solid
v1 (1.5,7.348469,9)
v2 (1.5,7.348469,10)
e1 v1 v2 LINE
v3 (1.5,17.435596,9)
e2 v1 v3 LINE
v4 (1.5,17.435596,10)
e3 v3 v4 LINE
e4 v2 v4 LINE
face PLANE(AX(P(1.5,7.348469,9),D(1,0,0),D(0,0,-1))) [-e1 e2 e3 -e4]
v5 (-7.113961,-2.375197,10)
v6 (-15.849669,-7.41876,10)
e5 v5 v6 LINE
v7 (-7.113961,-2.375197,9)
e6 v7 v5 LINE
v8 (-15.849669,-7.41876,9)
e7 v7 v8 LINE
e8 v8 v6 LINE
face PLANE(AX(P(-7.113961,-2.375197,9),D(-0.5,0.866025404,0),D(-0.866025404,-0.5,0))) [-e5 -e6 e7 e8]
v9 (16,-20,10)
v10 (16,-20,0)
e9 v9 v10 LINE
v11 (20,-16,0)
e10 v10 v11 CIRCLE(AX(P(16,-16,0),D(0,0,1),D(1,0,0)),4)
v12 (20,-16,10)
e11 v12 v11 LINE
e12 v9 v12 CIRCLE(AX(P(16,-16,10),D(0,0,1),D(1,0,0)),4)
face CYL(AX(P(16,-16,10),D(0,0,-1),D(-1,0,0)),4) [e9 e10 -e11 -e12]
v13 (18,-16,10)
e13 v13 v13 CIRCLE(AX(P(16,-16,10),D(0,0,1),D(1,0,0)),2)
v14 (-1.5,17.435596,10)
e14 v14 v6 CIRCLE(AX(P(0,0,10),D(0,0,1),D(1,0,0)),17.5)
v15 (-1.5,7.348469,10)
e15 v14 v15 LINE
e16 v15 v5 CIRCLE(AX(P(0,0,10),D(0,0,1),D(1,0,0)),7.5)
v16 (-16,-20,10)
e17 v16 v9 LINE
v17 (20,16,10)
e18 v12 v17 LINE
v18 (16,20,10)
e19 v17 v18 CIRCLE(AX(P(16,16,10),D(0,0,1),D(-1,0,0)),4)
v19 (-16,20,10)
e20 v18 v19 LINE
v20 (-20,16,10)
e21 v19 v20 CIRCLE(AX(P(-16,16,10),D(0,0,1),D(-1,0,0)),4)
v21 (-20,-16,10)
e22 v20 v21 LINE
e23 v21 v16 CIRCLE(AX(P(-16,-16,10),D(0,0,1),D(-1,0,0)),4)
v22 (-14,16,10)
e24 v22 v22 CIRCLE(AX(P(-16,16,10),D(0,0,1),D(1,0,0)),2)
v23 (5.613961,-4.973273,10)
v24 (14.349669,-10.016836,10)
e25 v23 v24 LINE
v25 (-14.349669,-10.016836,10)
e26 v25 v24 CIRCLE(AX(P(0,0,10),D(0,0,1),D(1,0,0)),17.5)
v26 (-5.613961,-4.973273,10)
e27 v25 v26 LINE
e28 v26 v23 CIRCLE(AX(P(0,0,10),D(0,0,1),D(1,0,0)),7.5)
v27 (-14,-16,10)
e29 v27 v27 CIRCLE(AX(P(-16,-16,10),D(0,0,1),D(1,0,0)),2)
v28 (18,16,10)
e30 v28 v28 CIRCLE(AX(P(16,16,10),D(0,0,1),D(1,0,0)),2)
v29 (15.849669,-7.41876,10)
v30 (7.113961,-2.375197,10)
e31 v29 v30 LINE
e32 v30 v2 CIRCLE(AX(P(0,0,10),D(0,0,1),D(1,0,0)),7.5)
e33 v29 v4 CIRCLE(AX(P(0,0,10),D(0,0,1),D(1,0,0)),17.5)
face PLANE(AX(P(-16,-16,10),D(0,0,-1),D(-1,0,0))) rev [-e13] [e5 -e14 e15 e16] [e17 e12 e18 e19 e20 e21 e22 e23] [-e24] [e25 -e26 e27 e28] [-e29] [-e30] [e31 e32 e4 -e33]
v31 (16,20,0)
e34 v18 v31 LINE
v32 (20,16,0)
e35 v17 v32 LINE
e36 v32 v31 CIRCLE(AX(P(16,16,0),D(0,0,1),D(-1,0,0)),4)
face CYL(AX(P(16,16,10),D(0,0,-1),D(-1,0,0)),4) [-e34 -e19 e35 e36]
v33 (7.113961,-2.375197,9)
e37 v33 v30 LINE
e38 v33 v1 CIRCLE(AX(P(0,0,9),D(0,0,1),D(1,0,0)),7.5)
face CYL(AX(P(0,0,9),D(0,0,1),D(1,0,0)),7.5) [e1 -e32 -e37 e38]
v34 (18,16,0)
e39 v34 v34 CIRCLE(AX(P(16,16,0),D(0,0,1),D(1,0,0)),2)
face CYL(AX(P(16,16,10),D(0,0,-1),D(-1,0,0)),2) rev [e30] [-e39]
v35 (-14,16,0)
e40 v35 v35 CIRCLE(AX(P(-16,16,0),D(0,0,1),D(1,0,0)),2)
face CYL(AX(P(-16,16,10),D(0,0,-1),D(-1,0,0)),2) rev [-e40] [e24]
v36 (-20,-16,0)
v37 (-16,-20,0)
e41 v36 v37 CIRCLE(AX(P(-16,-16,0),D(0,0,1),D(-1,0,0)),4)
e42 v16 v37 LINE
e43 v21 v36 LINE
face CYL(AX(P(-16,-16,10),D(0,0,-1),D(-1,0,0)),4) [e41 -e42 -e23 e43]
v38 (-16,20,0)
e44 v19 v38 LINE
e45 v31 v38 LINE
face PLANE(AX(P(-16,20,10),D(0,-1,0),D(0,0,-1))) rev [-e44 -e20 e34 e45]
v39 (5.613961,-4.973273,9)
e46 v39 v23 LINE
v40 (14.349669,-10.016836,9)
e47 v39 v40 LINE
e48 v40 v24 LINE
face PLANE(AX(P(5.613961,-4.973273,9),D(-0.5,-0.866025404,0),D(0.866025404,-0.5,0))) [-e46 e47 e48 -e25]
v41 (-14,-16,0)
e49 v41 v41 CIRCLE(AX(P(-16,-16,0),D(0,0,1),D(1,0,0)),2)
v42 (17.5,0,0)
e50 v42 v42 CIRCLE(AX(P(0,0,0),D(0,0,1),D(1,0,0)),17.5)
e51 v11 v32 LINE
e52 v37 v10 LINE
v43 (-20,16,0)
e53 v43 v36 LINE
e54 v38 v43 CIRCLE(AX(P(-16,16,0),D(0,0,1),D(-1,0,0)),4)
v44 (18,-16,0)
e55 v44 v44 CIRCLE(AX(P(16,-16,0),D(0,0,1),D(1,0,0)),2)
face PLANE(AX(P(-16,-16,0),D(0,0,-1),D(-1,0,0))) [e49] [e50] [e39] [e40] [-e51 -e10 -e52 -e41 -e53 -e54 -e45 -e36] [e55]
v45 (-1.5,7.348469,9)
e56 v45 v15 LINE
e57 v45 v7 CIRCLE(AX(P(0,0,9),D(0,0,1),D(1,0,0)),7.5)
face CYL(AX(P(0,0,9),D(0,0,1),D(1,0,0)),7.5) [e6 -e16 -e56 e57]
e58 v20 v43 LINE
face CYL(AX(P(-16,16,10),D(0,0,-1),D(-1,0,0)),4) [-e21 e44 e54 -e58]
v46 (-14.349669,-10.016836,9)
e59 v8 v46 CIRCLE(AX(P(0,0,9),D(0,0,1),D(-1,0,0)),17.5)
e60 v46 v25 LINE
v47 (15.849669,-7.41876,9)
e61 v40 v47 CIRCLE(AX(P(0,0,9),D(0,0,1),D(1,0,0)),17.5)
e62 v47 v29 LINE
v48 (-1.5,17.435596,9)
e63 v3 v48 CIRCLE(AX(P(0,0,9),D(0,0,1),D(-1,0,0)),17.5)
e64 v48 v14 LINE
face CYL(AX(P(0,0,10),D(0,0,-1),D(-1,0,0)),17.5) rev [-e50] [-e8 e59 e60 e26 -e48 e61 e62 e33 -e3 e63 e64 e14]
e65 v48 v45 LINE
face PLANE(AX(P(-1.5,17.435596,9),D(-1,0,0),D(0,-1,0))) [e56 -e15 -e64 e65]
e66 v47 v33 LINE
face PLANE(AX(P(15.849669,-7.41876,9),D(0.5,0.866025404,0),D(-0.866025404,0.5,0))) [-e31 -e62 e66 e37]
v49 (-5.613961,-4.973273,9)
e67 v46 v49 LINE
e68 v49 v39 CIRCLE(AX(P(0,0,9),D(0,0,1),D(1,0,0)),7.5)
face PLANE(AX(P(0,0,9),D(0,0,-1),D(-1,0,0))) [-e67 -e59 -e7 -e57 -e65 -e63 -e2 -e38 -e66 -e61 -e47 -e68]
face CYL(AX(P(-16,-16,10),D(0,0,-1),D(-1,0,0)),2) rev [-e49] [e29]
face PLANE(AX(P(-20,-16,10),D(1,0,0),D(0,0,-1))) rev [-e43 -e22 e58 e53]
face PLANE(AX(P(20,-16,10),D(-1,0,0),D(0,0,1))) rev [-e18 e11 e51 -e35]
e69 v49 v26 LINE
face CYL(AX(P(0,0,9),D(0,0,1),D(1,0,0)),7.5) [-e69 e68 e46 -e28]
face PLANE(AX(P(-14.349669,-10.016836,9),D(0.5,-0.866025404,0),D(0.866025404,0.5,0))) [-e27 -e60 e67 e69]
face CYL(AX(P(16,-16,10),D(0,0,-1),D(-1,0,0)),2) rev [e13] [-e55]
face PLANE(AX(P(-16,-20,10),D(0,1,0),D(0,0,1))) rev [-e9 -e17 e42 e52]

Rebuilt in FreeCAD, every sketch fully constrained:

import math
import FreeCAD as App
import Part
import Sketcher

V = App.Vector
Q = App.Units.Quantity

doc = App.newDocument("Part")
params = doc.addObject("Spreadsheet::Sheet", "Params")
for row, (alias, value) in enumerate([
    ("sketch1_diameter", "4 mm"),
    ("sketch1_diameter2", "35 mm"),
    ("sketch1_radius", "4 mm"),
    ("sketch1_width", "32 mm"),
    ("pad1_length", "10 mm"),
    ("sketch2_radius", "7.5 mm"),
    ("sketch2_radius2", "17.5 mm"),
    ("pad2_length", "1 mm"),
], start=1):
    params.set(f"A{row}", alias)
    params.set(f"B{row}", "=" + value)
    params.setAlias(f"B{row}", alias)

body = doc.addObject("PartDesign::Body", "Body")

sketch1 = body.newObject("Sketcher::SketchObject", "Sketch")
sketch1.AttachmentSupport = (doc.getObject("XY_Plane"), [""])
sketch1.MapMode = "FlatFace"
sketch1.addGeometry([
    Part.LineSegment(V(-16, -20, 0), V(16, -20, 0)),
    Part.ArcOfCircle(Part.Circle(V(16, -16, 0), V(0, 0, 1), 4), math.radians(-90), math.radians(0)),
    Part.LineSegment(V(20, -16, 0), V(20, 16, 0)),
    Part.ArcOfCircle(Part.Circle(V(16, 16, 0), V(0, 0, 1), 4), math.radians(0), math.radians(90)),
    Part.LineSegment(V(16, 20, 0), V(-16, 20, 0)),
    Part.ArcOfCircle(Part.Circle(V(-16, 16, 0), V(0, 0, 1), 4), math.radians(90), math.radians(180)),
    Part.LineSegment(V(-20, 16, 0), V(-20, -16, 0)),
    Part.ArcOfCircle(Part.Circle(V(-16, -16, 0), V(0, 0, 1), 4), math.radians(180), math.radians(270)),
    Part.Circle(V(-16, -16, 0), V(0, 0, 1), 2),
    Part.Circle(V(16, -16, 0), V(0, 0, 1), 2),
    Part.Circle(V(-16, 16, 0), V(0, 0, 1), 2),
    Part.Circle(V(0, 0, 0), V(0, 0, 1), 17.5),
    Part.Circle(V(16, 16, 0), V(0, 0, 1), 2),
], False)
sketch1.addConstraint([
    Sketcher.Constraint("Tangent", 0, 2, 1, 1),
    Sketcher.Constraint("Tangent", 1, 2, 2, 1),
    Sketcher.Constraint("Tangent", 2, 2, 3, 1),
    Sketcher.Constraint("Tangent", 3, 2, 4, 1),
    Sketcher.Constraint("Tangent", 4, 2, 5, 1),
    Sketcher.Constraint("Tangent", 5, 2, 6, 1),
    Sketcher.Constraint("Tangent", 6, 2, 7, 1),
    Sketcher.Constraint("Tangent", 7, 2, 0, 1),
    Sketcher.Constraint("Horizontal", 0),
    Sketcher.Constraint("Vertical", 2),
    Sketcher.Constraint("Horizontal", 4),
    Sketcher.Constraint("Vertical", 6),
    Sketcher.Constraint("Coincident", 11, 3, -1, 1),
    Sketcher.Constraint("Coincident", 8, 3, 7, 3),
    Sketcher.Constraint("Coincident", 9, 3, 1, 3),
    Sketcher.Constraint("Coincident", 10, 3, 5, 3),
    Sketcher.Constraint("Coincident", 12, 3, 3, 3),
    Sketcher.Constraint("Equal", 1, 3),
    Sketcher.Constraint("Equal", 3, 5),
    Sketcher.Constraint("Equal", 5, 7),
    Sketcher.Constraint("Equal", 8, 9),
    Sketcher.Constraint("Equal", 9, 10),
    Sketcher.Constraint("Equal", 10, 12),
    Sketcher.Constraint("Symmetric", 1, 3, 5, 3, -1, 1),
    Sketcher.Constraint("Equal", 4, 2),
    Sketcher.Constraint("Diameter", 8, 4.0),
    Sketcher.Constraint("Diameter", 11, 35.0),
    Sketcher.Constraint("Radius", 1, 4.0),
    Sketcher.Constraint("DistanceX", 0, 1, 0, 2, 32.0),
])
sketch1.setExpression("Constraints[25]", "Params.sketch1_diameter")
sketch1.setExpression("Constraints[26]", "Params.sketch1_diameter2")
sketch1.setExpression("Constraints[27]", "Params.sketch1_radius")
sketch1.setExpression("Constraints[28]", "Params.sketch1_width")
pad1 = body.newObject("PartDesign::Pad", "Pad")
pad1.Profile = sketch1
pad1.setExpression("Length", "Params.pad1_length")

sketch2 = body.newObject("Sketcher::SketchObject", "Sketch001")
sketch2.AttachmentSupport = (doc.getObject("XY_Plane"), [""])
sketch2.MapMode = "FlatFace"
sketch2.AttachmentOffset = App.Placement(V(0, 0, 9), App.Rotation())
sketch2.addGeometry([
    Part.LineSegment(V(-1.5, 17.4, 0), V(-1.5, 7.3, 0)),
    Part.ArcOfCircle(Part.Circle(V(0, 0, 0), V(0, 0, 1), 7.5), math.radians(102), math.radians(198)),
    Part.LineSegment(V(-7.1, -2.4, 0), V(-15.8, -7.4, 0)),
    Part.ArcOfCircle(Part.Circle(V(0, 0, 0), V(0, 0, 1), 17.5), math.radians(-154.92), math.radians(-145.08)),
    Part.LineSegment(V(-14.3, -10, 0), V(-5.6, -5, 0)),
    Part.ArcOfCircle(Part.Circle(V(0, 0, 0), V(0, 0, 1), 7.5), math.radians(-138), math.radians(-42)),
    Part.LineSegment(V(5.6, -5, 0), V(14.3, -10, 0)),
    Part.ArcOfCircle(Part.Circle(V(0, 0, 0), V(0, 0, 1), 17.5), math.radians(-34.92), math.radians(-25.08)),
    Part.LineSegment(V(15.8, -7.4, 0), V(7.1, -2.4, 0)),
    Part.ArcOfCircle(Part.Circle(V(0, 0, 0), V(0, 0, 1), 7.5), math.radians(-18), math.radians(78)),
    Part.LineSegment(V(1.5, 7.3, 0), V(1.5, 17.4, 0)),
    Part.ArcOfCircle(Part.Circle(V(0, 0, 0), V(0, 0, 1), 17.5), math.radians(85.08), math.radians(94.92)),
], False)
sketch2.addConstraint([
    Sketcher.Constraint("Coincident", 0, 2, 1, 1),
    Sketcher.Constraint("Coincident", 1, 2, 2, 1),
    Sketcher.Constraint("Coincident", 2, 2, 3, 1),
    Sketcher.Constraint("Coincident", 3, 2, 4, 1),
    Sketcher.Constraint("Coincident", 4, 2, 5, 1),
    Sketcher.Constraint("Coincident", 5, 2, 6, 1),
    Sketcher.Constraint("Coincident", 6, 2, 7, 1),
    Sketcher.Constraint("Coincident", 7, 2, 8, 1),
    Sketcher.Constraint("Coincident", 8, 2, 9, 1),
    Sketcher.Constraint("Coincident", 9, 2, 10, 1),
    Sketcher.Constraint("Coincident", 10, 2, 11, 1),
    Sketcher.Constraint("Coincident", 11, 2, 0, 1),
    Sketcher.Constraint("Vertical", 0),
    Sketcher.Constraint("Vertical", 10),
    Sketcher.Constraint("Coincident", 1, 3, -1, 1),
    Sketcher.Constraint("Coincident", 3, 3, -1, 1),
    Sketcher.Constraint("Coincident", 5, 3, -1, 1),
    Sketcher.Constraint("Coincident", 7, 3, -1, 1),
    Sketcher.Constraint("Coincident", 9, 3, -1, 1),
    Sketcher.Constraint("Coincident", 11, 3, -1, 1),
    Sketcher.Constraint("Equal", 1, 5),
    Sketcher.Constraint("Equal", 3, 7),
    Sketcher.Constraint("Equal", 5, 9),
    Sketcher.Constraint("Equal", 7, 11),
    Sketcher.Constraint("Parallel", 2, 4),
    Sketcher.Constraint("Parallel", 6, 8),
    Sketcher.Constraint("Horizontal", 4, 2, 5, 2),
    Sketcher.Constraint("Horizontal", 3, 2, 6, 2),
    Sketcher.Constraint("Horizontal", 2, 2, 7, 2),
    Sketcher.Constraint("Horizontal", 0, 2, 9, 2),
    Sketcher.Constraint("Equal", 2, 4),
    Sketcher.Constraint("Radius", 1, 7.5),
    Sketcher.Constraint("Radius", 3, 17.5),
    Sketcher.Constraint("Angle", 2, Q("-150 deg")),
    Sketcher.Constraint("DistanceX", 0, 2, 9, 2, 3.0),
    Sketcher.Constraint("DistanceX", 2, 2, 3, 2, 1.5),
])
sketch2.setExpression("Constraints[31]", "Params.sketch2_radius")
sketch2.setExpression("Constraints[32]", "Params.sketch2_radius2")
pad2 = body.newObject("PartDesign::Pad", "Pad001")
pad2.Profile = sketch2
pad2.setExpression("Length", "Params.pad2_length")

doc.recompute()
